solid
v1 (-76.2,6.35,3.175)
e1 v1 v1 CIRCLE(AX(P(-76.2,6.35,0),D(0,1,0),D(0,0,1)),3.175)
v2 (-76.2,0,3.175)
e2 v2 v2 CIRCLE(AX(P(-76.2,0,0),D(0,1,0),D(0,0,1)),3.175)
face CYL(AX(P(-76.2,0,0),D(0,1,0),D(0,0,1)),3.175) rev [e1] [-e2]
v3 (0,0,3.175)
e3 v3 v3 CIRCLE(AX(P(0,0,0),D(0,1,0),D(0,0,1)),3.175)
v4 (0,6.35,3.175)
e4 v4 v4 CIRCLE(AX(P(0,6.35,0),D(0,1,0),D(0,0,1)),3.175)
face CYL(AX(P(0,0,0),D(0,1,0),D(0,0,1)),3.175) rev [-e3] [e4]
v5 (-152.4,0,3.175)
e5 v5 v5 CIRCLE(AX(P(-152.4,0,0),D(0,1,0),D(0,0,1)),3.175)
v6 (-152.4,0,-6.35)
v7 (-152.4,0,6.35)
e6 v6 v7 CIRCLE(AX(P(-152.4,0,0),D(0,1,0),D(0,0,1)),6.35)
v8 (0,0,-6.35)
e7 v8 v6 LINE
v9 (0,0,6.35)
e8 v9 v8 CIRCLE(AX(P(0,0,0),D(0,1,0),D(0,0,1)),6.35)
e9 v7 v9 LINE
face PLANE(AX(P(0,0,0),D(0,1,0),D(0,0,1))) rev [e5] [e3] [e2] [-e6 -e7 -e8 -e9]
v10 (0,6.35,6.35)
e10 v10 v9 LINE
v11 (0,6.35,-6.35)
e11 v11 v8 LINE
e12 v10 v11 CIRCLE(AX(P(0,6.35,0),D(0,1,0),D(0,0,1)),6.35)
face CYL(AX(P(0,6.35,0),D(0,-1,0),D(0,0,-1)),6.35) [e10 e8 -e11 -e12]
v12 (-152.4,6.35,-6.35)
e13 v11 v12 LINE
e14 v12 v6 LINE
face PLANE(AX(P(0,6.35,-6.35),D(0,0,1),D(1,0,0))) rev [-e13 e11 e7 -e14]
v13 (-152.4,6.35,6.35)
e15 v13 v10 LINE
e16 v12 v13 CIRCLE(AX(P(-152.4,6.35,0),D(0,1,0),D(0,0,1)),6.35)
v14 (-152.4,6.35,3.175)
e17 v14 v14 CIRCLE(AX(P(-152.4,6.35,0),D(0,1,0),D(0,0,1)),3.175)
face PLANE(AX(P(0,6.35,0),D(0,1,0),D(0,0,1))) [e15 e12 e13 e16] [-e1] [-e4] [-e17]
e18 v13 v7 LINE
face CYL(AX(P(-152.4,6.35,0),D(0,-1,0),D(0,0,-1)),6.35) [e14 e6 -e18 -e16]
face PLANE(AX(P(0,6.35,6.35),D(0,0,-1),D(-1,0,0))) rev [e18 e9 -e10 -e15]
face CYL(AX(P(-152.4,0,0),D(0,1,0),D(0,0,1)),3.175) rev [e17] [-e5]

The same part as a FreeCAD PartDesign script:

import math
import FreeCAD as App
import Part
import Sketcher
from FreeCAD import Vector
Q = App.Units.Quantity

doc = App.newDocument("Part")
params = doc.addObject("Spreadsheet::Sheet", "Params")
for row, (alias, value) in enumerate([
    ("sketch1_width", "6 in"),
    ("sketch1_radius", "0.25 in"),
    ("pad1_length", "0.25 in"),
    ("sketch2_diameter", "0.25 in"),
], start=1):
    params.set(f"A{row}", alias)
    params.set(f"B{row}", "=" + value)
    params.setAlias(f"B{row}", alias)

body = doc.addObject("PartDesign::Body", "Body")

# Sketch on XZ plane
sketch1 = body.newObject("Sketcher::SketchObject", "Sketch")
sketch1.AttachmentSupport = (doc.getObject("XZ_Plane"), [""])
sketch1.MapMode = "FlatFace"
sketch1.addGeometry(Part.LineSegment(Vector(-152, 6, 0), Vector(0, 6, 0)), False)
sketch1.addGeometry(Part.ArcOfCircle(Part.Circle(Vector(0, 0, 0), Vector(0, 0, 1), 6), math.radians(-90), math.radians(90)), False)
sketch1.addGeometry(Part.LineSegment(Vector(0, -6, 0), Vector(-152, -6, 0)), False)
sketch1.addGeometry(Part.ArcOfCircle(Part.Circle(Vector(-152, 0, 0), Vector(0, 0, 1), 6), math.radians(90), math.radians(270)), False)
sketch1.addConstraint(Sketcher.Constraint("Tangent", 0, 2, 1, 2))
sketch1.addConstraint(Sketcher.Constraint("Tangent", 1, 1, 2, 1))
sketch1.addConstraint(Sketcher.Constraint("Tangent", 2, 2, 3, 2))
sketch1.addConstraint(Sketcher.Constraint("Tangent", 3, 1, 0, 1))
sketch1.addConstraint(Sketcher.Constraint("Horizontal", 0))
sketch1.addConstraint(Sketcher.Constraint("Horizontal", 2))
sketch1.addConstraint(Sketcher.Constraint("Coincident", 1, 3, -1, 1))
sketch1.addConstraint(Sketcher.Constraint("DistanceX", 0, 1, 0, 2, Q("6 in")))
sketch1.addConstraint(Sketcher.Constraint("Radius", 1, Q("0.25 in")))
sketch1.setExpression("Constraints[7]", "Params.sketch1_width")
sketch1.setExpression("Constraints[8]", "Params.sketch1_radius")
pad1 = body.newObject("PartDesign::Pad", "Pad")
pad1.Profile = sketch1
pad1.setExpression("Length", "Params.pad1_length")
pad1.Reversed = True

# Sketch on XZ plane
sketch2 = body.newObject("Sketcher::SketchObject", "Sketch001")
sketch2.AttachmentSupport = (doc.getObject("XZ_Plane"), [""])
sketch2.MapMode = "FlatFace"
sketch2.AttachmentOffset = App.Placement(Vector(0, 0, -0.25 * 25.4), App.Rotation())
sketch2.addGeometry(Part.Circle(Vector(-152.4, 0, 0), Vector(0, 0, 1), 3.2), False)
sketch2.addGeometry(Part.Circle(Vector(0, 0, 0), Vector(0, 0, 1), 3.2), False)
sketch2.addGeometry(Part.Circle(Vector(-76.2, 0, 0), Vector(0, 0, 1), 3.2), False)
sketch2.addConstraint(Sketcher.Constraint("Coincident", 1, 3, -1, 1))
sketch2.addConstraint(Sketcher.Constraint("Equal", 0, 1))
sketch2.addConstraint(Sketcher.Constraint("Equal", 1, 2))
sketch2.addConstraint(Sketcher.Constraint("PointOnObject", 0, 3, -1))
sketch2.addConstraint(Sketcher.Constraint("PointOnObject", 2, 3, -1))
sketch2.addConstraint(Sketcher.Constraint("Diameter", 0, Q("0.25 in")))
sketch2.addConstraint(Sketcher.Constraint("DistanceX", 0, 3, -1, 1, Q("6 in")))
sketch2.addConstraint(Sketcher.Constraint("DistanceX", 2, 3, -1, 1, Q("3 in")))
sketch2.setExpression("Constraints[5]", "Params.sketch2_diameter")
pocket1 = body.newObject("PartDesign::Pocket", "Pocket")
pocket1.Profile = sketch2
pocket1.Type = "ThroughAll"
pocket1.Reversed = True

doc.recompute()
